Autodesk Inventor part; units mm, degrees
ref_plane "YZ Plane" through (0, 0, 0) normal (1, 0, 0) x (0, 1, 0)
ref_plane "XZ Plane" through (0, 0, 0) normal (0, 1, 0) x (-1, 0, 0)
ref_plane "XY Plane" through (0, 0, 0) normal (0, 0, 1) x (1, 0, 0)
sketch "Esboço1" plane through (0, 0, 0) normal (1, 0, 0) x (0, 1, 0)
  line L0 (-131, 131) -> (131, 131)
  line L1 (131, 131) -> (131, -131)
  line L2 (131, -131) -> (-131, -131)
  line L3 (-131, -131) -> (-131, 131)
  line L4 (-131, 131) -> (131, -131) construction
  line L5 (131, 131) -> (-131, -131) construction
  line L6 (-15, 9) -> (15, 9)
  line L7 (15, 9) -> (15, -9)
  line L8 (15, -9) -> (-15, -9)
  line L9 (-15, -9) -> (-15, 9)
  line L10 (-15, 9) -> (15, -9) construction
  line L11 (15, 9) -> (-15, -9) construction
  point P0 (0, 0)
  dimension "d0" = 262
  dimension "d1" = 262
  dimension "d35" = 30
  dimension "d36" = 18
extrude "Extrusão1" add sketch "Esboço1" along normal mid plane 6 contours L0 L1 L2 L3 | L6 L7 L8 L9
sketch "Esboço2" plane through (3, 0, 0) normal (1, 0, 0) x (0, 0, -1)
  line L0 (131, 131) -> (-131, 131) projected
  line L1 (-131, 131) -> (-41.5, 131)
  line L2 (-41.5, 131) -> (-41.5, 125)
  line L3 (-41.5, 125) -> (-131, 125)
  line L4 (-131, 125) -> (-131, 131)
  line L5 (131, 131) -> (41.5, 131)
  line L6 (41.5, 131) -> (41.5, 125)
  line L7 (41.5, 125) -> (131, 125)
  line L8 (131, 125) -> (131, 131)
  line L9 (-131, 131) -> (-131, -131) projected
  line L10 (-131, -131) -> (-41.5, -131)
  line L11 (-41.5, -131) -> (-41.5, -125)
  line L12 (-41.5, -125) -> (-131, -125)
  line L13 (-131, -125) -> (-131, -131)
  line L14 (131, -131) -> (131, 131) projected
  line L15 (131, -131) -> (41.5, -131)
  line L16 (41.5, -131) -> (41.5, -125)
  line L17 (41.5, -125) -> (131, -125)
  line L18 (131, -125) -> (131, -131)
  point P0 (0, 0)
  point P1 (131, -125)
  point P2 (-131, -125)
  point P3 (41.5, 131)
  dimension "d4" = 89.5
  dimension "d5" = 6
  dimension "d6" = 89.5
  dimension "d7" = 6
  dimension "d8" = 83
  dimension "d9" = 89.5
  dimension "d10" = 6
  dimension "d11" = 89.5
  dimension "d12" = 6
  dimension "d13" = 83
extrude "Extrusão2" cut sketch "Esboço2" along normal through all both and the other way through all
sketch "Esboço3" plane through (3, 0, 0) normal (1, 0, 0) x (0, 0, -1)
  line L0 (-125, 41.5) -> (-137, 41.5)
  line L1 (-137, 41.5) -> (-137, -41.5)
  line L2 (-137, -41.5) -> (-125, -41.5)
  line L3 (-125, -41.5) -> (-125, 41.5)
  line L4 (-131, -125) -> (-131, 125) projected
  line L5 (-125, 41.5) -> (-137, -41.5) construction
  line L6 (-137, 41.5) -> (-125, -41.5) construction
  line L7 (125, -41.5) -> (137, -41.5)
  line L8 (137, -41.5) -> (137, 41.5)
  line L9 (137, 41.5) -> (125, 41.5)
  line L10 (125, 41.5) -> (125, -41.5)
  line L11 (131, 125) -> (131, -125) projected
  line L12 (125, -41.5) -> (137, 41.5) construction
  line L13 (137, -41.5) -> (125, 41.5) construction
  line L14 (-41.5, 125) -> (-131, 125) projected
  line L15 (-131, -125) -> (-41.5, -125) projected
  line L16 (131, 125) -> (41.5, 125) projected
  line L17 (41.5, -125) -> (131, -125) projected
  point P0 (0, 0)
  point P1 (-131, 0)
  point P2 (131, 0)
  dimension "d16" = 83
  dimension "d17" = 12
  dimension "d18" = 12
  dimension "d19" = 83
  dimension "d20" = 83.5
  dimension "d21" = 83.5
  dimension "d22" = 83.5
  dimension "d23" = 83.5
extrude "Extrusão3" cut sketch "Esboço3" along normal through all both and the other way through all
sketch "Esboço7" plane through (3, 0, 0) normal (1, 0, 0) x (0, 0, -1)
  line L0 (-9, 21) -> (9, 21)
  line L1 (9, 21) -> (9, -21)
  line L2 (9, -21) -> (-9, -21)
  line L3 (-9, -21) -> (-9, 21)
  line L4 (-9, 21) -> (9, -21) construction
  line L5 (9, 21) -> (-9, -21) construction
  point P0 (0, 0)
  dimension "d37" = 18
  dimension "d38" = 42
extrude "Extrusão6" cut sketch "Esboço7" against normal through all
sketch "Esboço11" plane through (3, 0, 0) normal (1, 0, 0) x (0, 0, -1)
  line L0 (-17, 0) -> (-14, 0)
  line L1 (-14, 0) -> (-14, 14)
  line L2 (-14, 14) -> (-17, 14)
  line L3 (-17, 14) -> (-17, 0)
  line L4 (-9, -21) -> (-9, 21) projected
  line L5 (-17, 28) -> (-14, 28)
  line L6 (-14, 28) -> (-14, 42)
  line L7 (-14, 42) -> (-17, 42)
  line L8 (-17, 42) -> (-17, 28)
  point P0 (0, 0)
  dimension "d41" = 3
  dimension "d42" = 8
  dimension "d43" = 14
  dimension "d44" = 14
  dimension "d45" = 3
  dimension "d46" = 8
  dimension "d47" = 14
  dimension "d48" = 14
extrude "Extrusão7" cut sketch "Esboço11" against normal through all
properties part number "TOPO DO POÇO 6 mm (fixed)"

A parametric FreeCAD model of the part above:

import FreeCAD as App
import Part
import Sketcher

V = App.Vector
Q = App.Units.Quantity


def add_polygon(sketch, points):
    """Adds a closed chain of lines whose ends are joined by coincident constraints."""
    first, n = sketch.GeometryCount, len(points)
    for a, b in zip(points, points[1:] + points[:1]):
        sketch.addGeometry(Part.LineSegment(App.Vector(*a, 0), App.Vector(*b, 0)), False)
    for i in range(n):
        sketch.addConstraint(Sketcher.Constraint("Coincident", first + i, 2, first + (i + 1) % n, 1))

doc = App.newDocument("Part")
params = doc.addObject("Spreadsheet::Sheet", "Params")
for row, (alias, value) in enumerate([
    ("sketch1_width", "262 mm"),
    ("pad1_length", "6 mm"),
    ("sketch2_width", "6 mm"),
    ("sketch2_height", "89.5 mm"),
    ("sketch3_width", "83 mm"),
    ("sketch3_height", "12 mm"),
    ("sketch4_width", "42 mm"),
    ("sketch4_height", "18 mm"),
    ("sketch5_width", "14 mm"),
    ("sketch5_height", "3 mm"),
], start=1):
    params.set(f"A{row}", alias)
    params.set(f"B{row}", "=" + value)
    params.setAlias(f"B{row}", alias)

body = doc.addObject("PartDesign::Body", "Body")

sketch1 = body.newObject("Sketcher::SketchObject", "Sketch")
sketch1.AttachmentSupport = (doc.getObject("YZ_Plane"), [""])
sketch1.MapMode = "FlatFace"
add_polygon(sketch1, [(131, 131), (-131, 131), (-131, -131), (131, -131)])
sketch1.addConstraint([
    Sketcher.Constraint("Horizontal", 0),
    Sketcher.Constraint("Vertical", 1),
    Sketcher.Constraint("Horizontal", 2),
    Sketcher.Constraint("Vertical", 3),
    Sketcher.Constraint("Symmetric", 0, 2, 2, 2, -1, 1),
    Sketcher.Constraint("Equal", 2, 1),
    Sketcher.Constraint("DistanceX", 0, 2, 0, 1, Q("262 mm")),
])
sketch1.setExpression("Constraints[10]", "Params.sketch1_width")
pad1 = body.newObject("PartDesign::Pad", "Pad")
pad1.Profile = sketch1
pad1.setExpression("Length", "Params.pad1_length")
pad1.Midplane = True

sketch2 = body.newObject("Sketcher::SketchObject", "Sketch001")
sketch2.AttachmentSupport = (doc.getObject("YZ_Plane"), [""])
sketch2.MapMode = "FlatFace"
sketch2.AttachmentOffset = App.Placement(V(0, 0, 3), App.Rotation())
add_polygon(sketch2, [(125, -131), (131, -131), (131, -42), (125, -42)])
add_polygon(sketch2, [(-131, -131), (-125, -131), (-125, -42), (-131, -42)])
add_polygon(sketch2, [(-125, 42), (-125, 131), (-131, 131), (-131, 42)])
add_polygon(sketch2, [(125, 42), (131, 42), (131, 131), (125, 131)])
sketch2.addConstraint([
    Sketcher.Constraint("Horizontal", 0),
    Sketcher.Constraint("Vertical", 1),
    Sketcher.Constraint("Horizontal", 2),
    Sketcher.Constraint("Vertical", 3),
    Sketcher.Constraint("Horizontal", 4),
    Sketcher.Constraint("Vertical", 5),
    Sketcher.Constraint("Horizontal", 6),
    Sketcher.Constraint("Vertical", 7),
    Sketcher.Constraint("Vertical", 8),
    Sketcher.Constraint("Horizontal", 9),
    Sketcher.Constraint("Vertical", 10),
    Sketcher.Constraint("Horizontal", 11),
    Sketcher.Constraint("Horizontal", 12),
    Sketcher.Constraint("Vertical", 13),
    Sketcher.Constraint("Horizontal", 14),
    Sketcher.Constraint("Vertical", 15),
    Sketcher.Constraint("Symmetric", 3, 2, 8, 2, -1, 1),
    Sketcher.Constraint("Symmetric", 1, 2, 10, 2, -1, 1),
    Sketcher.Constraint("Symmetric", 6, 2, 12, 2, -1, 1),
    Sketcher.Constraint("Symmetric", 4, 2, 14, 2, -1, 1),
    Sketcher.Constraint("Symmetric", 3, 2, 4, 2, -2),
    Sketcher.Constraint("Symmetric", 1, 2, 6, 2, -2),
    Sketcher.Constraint("DistanceX", 0, 1, 0, 2, Q("6 mm")),
    Sketcher.Constraint("DistanceY", 1, 1, 1, 2, Q("89.5 mm")),
    Sketcher.Constraint("DistanceY", 6, 2, 10, 2, Q("83 mm")),
    Sketcher.Constraint("DistanceX", -1, 1, 0, 2, Q("131 mm")),
])
sketch2.setExpression("Constraints[38]", "Params.sketch2_width")
sketch2.setExpression("Constraints[39]", "Params.sketch2_height")
pocket1 = body.newObject("PartDesign::Pocket", "Pocket")
pocket1.Profile = sketch2
pocket1.Type = "ThroughAll"
pocket1.Midplane = True

sketch3 = body.newObject("Sketcher::SketchObject", "Sketch002")
sketch3.AttachmentSupport = (doc.getObject("YZ_Plane"), [""])
sketch3.MapMode = "FlatFace"
sketch3.AttachmentOffset = App.Placement(V(0, 0, 3), App.Rotation())
add_polygon(sketch3, [(-42, 125), (42, 125), (42, 137), (-42, 137)])
add_polygon(sketch3, [(42, -125), (-42, -125), (-42, -137), (42, -137)])
sketch3.addConstraint([
    Sketcher.Constraint("Horizontal", 0),
    Sketcher.Constraint("Vertical", 1),
    Sketcher.Constraint("Horizontal", 2),
    Sketcher.Constraint("Vertical", 3),
    Sketcher.Constraint("Horizontal", 4),
    Sketcher.Constraint("Vertical", 5),
    Sketcher.Constraint("Horizontal", 6),
    Sketcher.Constraint("Vertical", 7),
    Sketcher.Constraint("Symmetric", 0, 2, 4, 2, -1, 1),
    Sketcher.Constraint("Symmetric", 2, 2, 6, 2, -1, 1),
    Sketcher.Constraint("Vertical", 3, 2, 4, 2),
    Sketcher.Constraint("DistanceX", 0, 1, 0, 2, Q("83 mm")),
    Sketcher.Constraint("DistanceY", 1, 1, 1, 2, Q("12 mm")),
    Sketcher.Constraint("DistanceY", -1, 1, 0, 2, Q("125 mm")),
])
sketch3.setExpression("Constraints[19]", "Params.sketch3_width")
sketch3.setExpression("Constraints[20]", "Params.sketch3_height")
pocket2 = body.newObject("PartDesign::Pocket", "Pocket001")
pocket2.Profile = sketch3
pocket2.Type = "ThroughAll"
pocket2.Midplane = True

sketch4 = body.newObject("Sketcher::SketchObject", "Sketch003")
sketch4.AttachmentSupport = (doc.getObject("YZ_Plane"), [""])
sketch4.MapMode = "FlatFace"
sketch4.AttachmentOffset = App.Placement(V(0, 0, 3), App.Rotation())
add_polygon(sketch4, [(21, -9), (21, 9), (-21, 9), (-21, -9)])
sketch4.addConstraint([
    Sketcher.Constraint("Vertical", 0),
    Sketcher.Constraint("Horizontal", 1),
    Sketcher.Constraint("Vertical", 2),
    Sketcher.Constraint("Horizontal", 3),
    Sketcher.Constraint("Symmetric", 0, 2, 2, 2, -1, 1),
    Sketcher.Constraint("DistanceX", 1, 2, 1, 1, Q("42 mm")),
    Sketcher.Constraint("DistanceY", 0, 1, 0, 2, Q("18 mm")),
])
sketch4.setExpression("Constraints[9]", "Params.sketch4_width")
sketch4.setExpression("Constraints[10]", "Params.sketch4_height")
pocket3 = body.newObject("PartDesign::Pocket", "Pocket002")
pocket3.Profile = sketch4
pocket3.Type = "ThroughAll"

sketch5 = body.newObject("Sketcher::SketchObject", "Sketch004")
sketch5.AttachmentSupport = (doc.getObject("YZ_Plane"), [""])
sketch5.MapMode = "FlatFace"
sketch5.AttachmentOffset = App.Placement(V(0, 0, 3), App.Rotation())
add_polygon(sketch5, [(14, 17), (0, 17), (0, 14), (14, 14)])
add_polygon(sketch5, [(42, 17), (28, 17), (28, 14), (42, 14)])
sketch5.addConstraint([
    Sketcher.Constraint("Horizontal", 0),
    Sketcher.Constraint("Vertical", 1),
    Sketcher.Constraint("Horizontal", 2),
    Sketcher.Constraint("Vertical", 3),
    Sketcher.Constraint("Horizontal", 4),
    Sketcher.Constraint("Vertical", 5),
    Sketcher.Constraint("Horizontal", 6),
    Sketcher.Constraint("Vertical", 7),
    Sketcher.Constraint("PointOnObject", 0, 2, -2),
    Sketcher.Constraint("Horizontal", 3, 2, 4, 2),
    Sketcher.Constraint("Horizontal", 2, 2, 5, 2),
    Sketcher.Constraint("Equal", 2, 4),
    Sketcher.Constraint("DistanceX", 0, 2, 0, 1, Q("14 mm")),
    Sketcher.Constraint("DistanceY", 1, 2, 1, 1, Q("3 mm")),
    Sketcher.Constraint("DistanceY", -1, 1, 1, 2, Q("14 mm")),
    Sketcher.Constraint("DistanceX", 3, 2, 4, 2, Q("14 mm")),
])
sketch5.setExpression("Constraints[20]", "Params.sketch5_width")
sketch5.setExpression("Constraints[21]", "Params.sketch5_height")
pocket4 = body.newObject("PartDesign::Pocket", "Pocket003")
pocket4.Profile = sketch5
pocket4.Type = "ThroughAll"

doc.recompute()
